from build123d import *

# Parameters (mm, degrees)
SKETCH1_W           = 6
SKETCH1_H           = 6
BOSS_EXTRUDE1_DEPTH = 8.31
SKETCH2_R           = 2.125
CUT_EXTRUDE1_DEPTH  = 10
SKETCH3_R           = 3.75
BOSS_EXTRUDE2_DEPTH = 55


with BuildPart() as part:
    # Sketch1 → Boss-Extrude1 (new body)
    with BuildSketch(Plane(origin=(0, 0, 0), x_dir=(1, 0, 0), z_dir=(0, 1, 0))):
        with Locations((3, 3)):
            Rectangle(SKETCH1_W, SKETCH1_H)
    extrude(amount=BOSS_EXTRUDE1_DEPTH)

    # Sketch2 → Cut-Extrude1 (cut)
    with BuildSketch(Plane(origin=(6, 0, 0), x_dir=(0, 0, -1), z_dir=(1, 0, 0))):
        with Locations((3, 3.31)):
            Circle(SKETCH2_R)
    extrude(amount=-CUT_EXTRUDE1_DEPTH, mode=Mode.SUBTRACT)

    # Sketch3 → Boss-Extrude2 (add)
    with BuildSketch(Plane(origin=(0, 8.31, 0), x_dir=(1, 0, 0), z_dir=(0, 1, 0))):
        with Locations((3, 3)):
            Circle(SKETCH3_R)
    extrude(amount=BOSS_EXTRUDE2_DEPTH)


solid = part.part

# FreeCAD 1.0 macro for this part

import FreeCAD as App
import Part
import Sketcher


def add_polygon(sketch, points):
    """Adds a closed chain of lines whose ends are joined by coincident constraints."""
    first, n = sketch.GeometryCount, len(points)
    for a, b in zip(points, points[1:] + points[:1]):
        sketch.addGeometry(Part.LineSegment(App.Vector(*a, 0), App.Vector(*b, 0)), False)
    for i in range(n):
        sketch.addConstraint(Sketcher.Constraint("Coincident", first + i, 2, first + (i + 1) % n, 1))

doc = App.newDocument("Part")
body = doc.addObject("PartDesign::Body", "Body")

sketch1 = body.newObject("Sketcher::SketchObject", "Sketch")
sketch1.AttachmentSupport = (doc.getObject("XZ_Plane"), [""])
sketch1.MapMode = "FlatFace"
add_polygon(sketch1, [(0, -6), (0, 0), (6, 0), (6, -6)])
sketch1.addConstraint([
    Sketcher.Constraint("Vertical", 0),
    Sketcher.Constraint("Horizontal", 1),
    Sketcher.Constraint("Vertical", 2),
    Sketcher.Constraint("Horizontal", 3),
    Sketcher.Constraint("Coincident", 0, 2, -1, 1),
    Sketcher.Constraint("Equal", 3, 0),
    Sketcher.Constraint("DistanceX", 1, 1, 1, 2, 6.0),
])
pad1 = body.newObject("PartDesign::Pad", "Pad")
pad1.Profile = sketch1
pad1.Length = 8.31
pad1.Reversed = True

sketch2 = body.newObject("Sketcher::SketchObject", "Sketch001")
sketch2.AttachmentSupport = (doc.getObject("YZ_Plane"), [""])
sketch2.MapMode = "FlatFace"
sketch2.AttachmentOffset = App.Placement(App.Vector(0, 0, 6), App.Rotation())
sketch2.addGeometry(Part.Circle(App.Vector(3.3, -3, 0), App.Vector(0, 0, 1), 2.1), False)
sketch2.addConstraint([
    Sketcher.Constraint("Diameter", 0, 4.25),
    Sketcher.Constraint("DistanceY", 0, 3, -1, 1, 3.0),
    Sketcher.Constraint("DistanceX", -1, 1, 0, 3, 3.31),
])
pocket1 = body.newObject("PartDesign::Pocket", "Pocket")
pocket1.Profile = sketch2
pocket1.Length = 10

sketch3 = body.newObject("Sketcher::SketchObject", "Sketch002")
sketch3.AttachmentSupport = (doc.getObject("XZ_Plane"), [""])
sketch3.MapMode = "FlatFace"
sketch3.AttachmentOffset = App.Placement(App.Vector(0, 0, -8.31), App.Rotation())
sketch3.addGeometry(Part.Circle(App.Vector(3, -3, 0), App.Vector(0, 0, 1), 3.8), False)
sketch3.addConstraint([
    Sketcher.Constraint("Diameter", 0, 7.5),
    Sketcher.Constraint("DistanceX", -1, 1, 0, 3, 3.0),
    Sketcher.Constraint("DistanceY", 0, 3, -1, 1, 3.0),
])
pad2 = body.newObject("PartDesign::Pad", "Pad001")
pad2.Profile = sketch3
pad2.Length = 55
pad2.Reversed = True

doc.recompute()
